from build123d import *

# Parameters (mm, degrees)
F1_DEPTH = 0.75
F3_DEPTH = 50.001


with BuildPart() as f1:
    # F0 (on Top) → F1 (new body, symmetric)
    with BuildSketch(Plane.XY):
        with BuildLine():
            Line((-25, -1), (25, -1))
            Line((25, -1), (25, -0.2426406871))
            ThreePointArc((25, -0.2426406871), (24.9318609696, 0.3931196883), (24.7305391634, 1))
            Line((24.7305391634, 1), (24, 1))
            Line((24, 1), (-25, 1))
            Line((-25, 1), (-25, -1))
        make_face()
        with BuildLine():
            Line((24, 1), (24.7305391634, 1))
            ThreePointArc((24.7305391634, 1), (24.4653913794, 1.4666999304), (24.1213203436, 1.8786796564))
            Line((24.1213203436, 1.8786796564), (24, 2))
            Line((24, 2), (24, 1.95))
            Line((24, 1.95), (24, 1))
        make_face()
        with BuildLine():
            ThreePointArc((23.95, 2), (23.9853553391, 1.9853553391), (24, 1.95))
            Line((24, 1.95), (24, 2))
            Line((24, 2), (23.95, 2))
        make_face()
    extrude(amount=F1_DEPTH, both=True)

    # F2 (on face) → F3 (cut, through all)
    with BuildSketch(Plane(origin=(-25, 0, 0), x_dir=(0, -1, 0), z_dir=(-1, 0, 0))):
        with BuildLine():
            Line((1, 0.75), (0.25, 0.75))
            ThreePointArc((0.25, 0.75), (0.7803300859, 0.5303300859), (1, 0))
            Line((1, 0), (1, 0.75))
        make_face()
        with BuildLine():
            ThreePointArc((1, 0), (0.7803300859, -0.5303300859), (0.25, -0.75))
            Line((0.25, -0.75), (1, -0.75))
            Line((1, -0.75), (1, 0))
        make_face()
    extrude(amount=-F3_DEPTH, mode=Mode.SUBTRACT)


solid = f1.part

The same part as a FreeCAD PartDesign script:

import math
import FreeCAD as App
import Part
import Sketcher

V = App.Vector
Q = App.Units.Quantity

doc = App.newDocument("Part")
params = doc.addObject("Spreadsheet::Sheet", "Params")
for row, (alias, value) in enumerate([
    ("sketch1_radius", "3 mm"),
    ("sketch1_width", "50 mm"),
    ("sketch1_width2", "49 mm"),
    ("sketch1_height", "2 mm"),
    ("sketch1_radius2", "0.05 mm"),
    ("pad1_length", "1.5 mm"),
    ("sketch2_radius", "0.75 mm"),
], start=1):
    params.set(f"A{row}", alias)
    params.set(f"B{row}", "=" + value)
    params.setAlias(f"B{row}", alias)

body = doc.addObject("PartDesign::Body", "Body")

# Sketch on XY plane
sketch1 = body.newObject("Sketcher::SketchObject", "Sketch")
sketch1.AttachmentSupport = (doc.getObject("XY_Plane"), [""])
sketch1.MapMode = "FlatFace"
sketch1.addGeometry([
    Part.LineSegment(V(-25, -1, 0), V(25, -1, 0)),  # 0
    Part.LineSegment(V(25, -1, 0), V(25, -0.24, 0)),  # 1
    Part.ArcOfCircle(Part.Circle(V(22, -0.24, 0), V(0, 0, 1), 3), math.radians(0), math.radians(24)),  # 2
    Part.ArcOfCircle(Part.Circle(V(22, -0.24, 0), V(0, 0, 1), 3), math.radians(24), math.radians(45)),  # 3
    Part.LineSegment(V(24.12, 1.88, 0), V(24, 2, 0)),  # 4
    Part.LineSegment(V(24, 2, 0), V(23.95, 2, 0)),  # 5
    Part.ArcOfCircle(Part.Circle(V(23.95, 1.95, 0), V(0, 0, 1), 0.05), math.radians(0), math.radians(90)),  # 6
    Part.LineSegment(V(24, 1.95, 0), V(24, 1, 0)),  # 7
    Part.LineSegment(V(24, 1, 0), V(-25, 1, 0)),  # 8
    Part.LineSegment(V(-25, 1, 0), V(-25, -1, 0)),  # 9
], False)
sketch1.addConstraint([
    Sketcher.Constraint("Coincident", 0, 2, 1, 1),
    Sketcher.Constraint("Tangent", 1, 2, 2, 1),
    Sketcher.Constraint("Tangent", 2, 2, 3, 1),
    Sketcher.Constraint("Tangent", 3, 2, 4, 1),
    Sketcher.Constraint("Coincident", 4, 2, 5, 1),
    Sketcher.Constraint("Tangent", 5, 2, 6, 2),
    Sketcher.Constraint("Tangent", 6, 1, 7, 1),
    Sketcher.Constraint("Coincident", 7, 2, 8, 1),
    Sketcher.Constraint("Coincident", 8, 2, 9, 1),
    Sketcher.Constraint("Coincident", 9, 2, 0, 1),
    Sketcher.Constraint("Horizontal", 0),
    Sketcher.Constraint("Vertical", 1),
    Sketcher.Constraint("Horizontal", 5),
    Sketcher.Constraint("Vertical", 7),
    Sketcher.Constraint("Horizontal", 8),
    Sketcher.Constraint("Vertical", 9),
    Sketcher.Constraint("Equal", 2, 3),
    Sketcher.Constraint("Symmetric", 0, 2, 8, 2, -1, 1),
    Sketcher.Constraint("Horizontal", 2, 2, 7, 2),
    Sketcher.Constraint("Vertical", 4, 2, 6, 1),
    Sketcher.Constraint("Radius", 2, Q("3 mm")),
    Sketcher.Constraint("DistanceX", 0, 1, 0, 2, Q("50 mm")),
    Sketcher.Constraint("DistanceX", 8, 2, 8, 1, Q("49 mm")),
    Sketcher.Constraint("DistanceY", 9, 2, 9, 1, Q("2 mm")),
    Sketcher.Constraint("Angle", 4, Q("135 deg")),
    Sketcher.Constraint("Radius", 6, Q("0.05 mm")),
    Sketcher.Constraint("DistanceY", -1, 1, 4, 2, Q("2 mm")),
])
sketch1.setExpression("Constraints[20]", "Params.sketch1_radius")
sketch1.setExpression("Constraints[21]", "Params.sketch1_width")
sketch1.setExpression("Constraints[22]", "Params.sketch1_width2")
sketch1.setExpression("Constraints[23]", "Params.sketch1_height")
sketch1.setExpression("Constraints[25]", "Params.sketch1_radius2")
pad1 = body.newObject("PartDesign::Pad", "Pad")
pad1.Profile = sketch1
pad1.setExpression("Length", "Params.pad1_length")
pad1.Midplane = True

# Sketch on YZ plane
sketch2 = body.newObject("Sketcher::SketchObject", "Sketch001")
sketch2.AttachmentSupport = (doc.getObject("YZ_Plane"), [""])
sketch2.MapMode = "FlatFace"
sketch2.AttachmentOffset = App.Placement(V(0, 0, -25), App.Rotation())
sketch2.addGeometry([
    Part.LineSegment(V(-1, 0.8, 0), V(-0.2, 0.8, 0)),  # 0
    Part.ArcOfCircle(Part.Circle(V(-0.2, 0, 0), V(0, 0, 1), 0.8), math.radians(90), math.radians(180)),  # 1
    Part.LineSegment(V(-1, 0, 0), V(-1, 0.8, 0)),  # 2
    Part.ArcOfCircle(Part.Circle(V(-0.2, 0, 0), V(0, 0, 1), 0.8), math.radians(180), math.radians(270)),  # 3
    Part.LineSegment(V(-0.2, -0.8, 0), V(-1, -0.8, 0)),  # 4
    Part.LineSegment(V(-1, -0.8, 0), V(-1, 0, 0)),  # 5
], False)
sketch2.addConstraint([
    Sketcher.Constraint("Tangent", 0, 2, 1, 1),
    Sketcher.Constraint("Tangent", 1, 2, 2, 1),
    Sketcher.Constraint("Coincident", 2, 2, 0, 1),
    Sketcher.Constraint("Tangent", 3, 2, 4, 1),
    Sketcher.Constraint("Coincident", 4, 2, 5, 1),
    Sketcher.Constraint("Tangent", 5, 2, 3, 1),
    Sketcher.Constraint("Horizontal", 0),
    Sketcher.Constraint("Vertical", 2),
    Sketcher.Constraint("Horizontal", 4),
    Sketcher.Constraint("Vertical", 5),
    Sketcher.Constraint("Coincident", 3, 3, 1, 3),
    Sketcher.Constraint("Equal", 1, 3),
    Sketcher.Constraint("PointOnObject", 1, 3, -1),
    Sketcher.Constraint("Radius", 1, Q("0.75 mm")),
    Sketcher.Constraint("DistanceX", 1, 2, -1, 1, Q("1 mm")),
])
sketch2.setExpression("Constraints[13]", "Params.sketch2_radius")
pocket1 = body.newObject("PartDesign::Pocket", "Pocket")
pocket1.Profile = sketch2
pocket1.Type = "ThroughAll"
pocket1.Reversed = True

doc.recompute()
